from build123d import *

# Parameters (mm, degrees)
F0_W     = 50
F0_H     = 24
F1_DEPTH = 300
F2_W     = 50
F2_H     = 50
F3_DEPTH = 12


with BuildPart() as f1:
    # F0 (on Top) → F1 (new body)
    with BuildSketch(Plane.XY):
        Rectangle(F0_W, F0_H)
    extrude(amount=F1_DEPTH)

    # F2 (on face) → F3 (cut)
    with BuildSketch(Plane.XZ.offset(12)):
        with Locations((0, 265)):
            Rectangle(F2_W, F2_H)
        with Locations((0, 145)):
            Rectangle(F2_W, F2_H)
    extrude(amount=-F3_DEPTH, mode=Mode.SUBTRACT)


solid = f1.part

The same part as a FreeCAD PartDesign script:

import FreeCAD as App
import Part
import Sketcher

V = App.Vector
Q = App.Units.Quantity

doc = App.newDocument("Part")
body = doc.addObject("PartDesign::Body", "Body")

sketch1 = doc.addObject("Sketcher::SketchObject", "Sketch")
body.addObject(sketch1)
sketch1.AttachmentSupport = (doc.XY_Plane, [""])
sketch1.MapMode = "FlatFace"
sketch1.addGeometry([
    Part.LineSegment(V(-25, 12, 0), V(-25, -12, 0)),
    Part.LineSegment(V(-25, -12, 0), V(25, -12, 0)),
    Part.LineSegment(V(25, -12, 0), V(25, 12, 0)),
    Part.LineSegment(V(25, 12, 0), V(-25, 12, 0)),
], False)
sketch1.addConstraint([
    Sketcher.Constraint("Coincident", 0, 2, 1, 1),
    Sketcher.Constraint("Coincident", 1, 2, 2, 1),
    Sketcher.Constraint("Coincident", 2, 2, 3, 1),
    Sketcher.Constraint("Coincident", 3, 2, 0, 1),
    Sketcher.Constraint("Vertical", 0),
    Sketcher.Constraint("Horizontal", 1),
    Sketcher.Constraint("Vertical", 2),
    Sketcher.Constraint("Horizontal", 3),
    Sketcher.Constraint("Symmetric", 0, 2, 2, 2, -1, 1),
    Sketcher.Constraint("DistanceX", 1, 1, 1, 2, Q("50 mm")),
    Sketcher.Constraint("DistanceY", 0, 2, 0, 1, Q("24 mm")),
])
pad1 = doc.addObject("PartDesign::Pad", "Pad")
body.addObject(pad1)
pad1.Profile = sketch1
pad1.Length = 300

sketch2 = doc.addObject("Sketcher::SketchObject", "Sketch001")
body.addObject(sketch2)
sketch2.AttachmentSupport = (doc.XZ_Plane, [""])
sketch2.MapMode = "FlatFace"
sketch2.AttachmentOffset = App.Placement(V(0, 0, 12), App.Rotation())
sketch2.addGeometry([
    Part.LineSegment(V(-25, 290, 0), V(-25, 240, 0)),
    Part.LineSegment(V(-25, 240, 0), V(25, 240, 0)),
    Part.LineSegment(V(25, 240, 0), V(25, 290, 0)),
    Part.LineSegment(V(25, 290, 0), V(-25, 290, 0)),
    Part.LineSegment(V(-25, 170, 0), V(-25, 120, 0)),
    Part.LineSegment(V(-25, 120, 0), V(25, 120, 0)),
    Part.LineSegment(V(25, 120, 0), V(25, 170, 0)),
    Part.LineSegment(V(25, 170, 0), V(-25, 170, 0)),
], False)
sketch2.addConstraint([
    Sketcher.Constraint("Coincident", 0, 2, 1, 1),
    Sketcher.Constraint("Coincident", 1, 2, 2, 1),
    Sketcher.Constraint("Coincident", 2, 2, 3, 1),
    Sketcher.Constraint("Coincident", 3, 2, 0, 1),
    Sketcher.Constraint("Coincident", 4, 2, 5, 1),
    Sketcher.Constraint("Coincident", 5, 2, 6, 1),
    Sketcher.Constraint("Coincident", 6, 2, 7, 1),
    Sketcher.Constraint("Coincident", 7, 2, 4, 1),
    Sketcher.Constraint("Vertical", 0),
    Sketcher.Constraint("Horizontal", 1),
    Sketcher.Constraint("Vertical", 2),
    Sketcher.Constraint("Horizontal", 3),
    Sketcher.Constraint("Vertical", 4),
    Sketcher.Constraint("Horizontal", 5),
    Sketcher.Constraint("Vertical", 6),
    Sketcher.Constraint("Horizontal", 7),
    Sketcher.Constraint("Vertical", 3, 2, 4, 2),
    Sketcher.Constraint("Vertical", 2, 2, 5, 2),
    Sketcher.Constraint("Equal", 7, 0),
    Sketcher.Constraint("Equal", 2, 4),
    Sketcher.Constraint("DistanceX", 1, 1, 1, 2, Q("50 mm")),
    Sketcher.Constraint("DistanceX", 0, 2, -1, 1, Q("25 mm")),
    Sketcher.Constraint("DistanceY", -1, 1, 0, 2, Q("240 mm")),
    Sketcher.Constraint("DistanceY", -1, 1, 4, 2, Q("120 mm")),
])
pocket1 = doc.addObject("PartDesign::Pocket", "Pocket")
body.addObject(pocket1)
pocket1.Profile = sketch2
pocket1.Length = 12

doc.recompute()
